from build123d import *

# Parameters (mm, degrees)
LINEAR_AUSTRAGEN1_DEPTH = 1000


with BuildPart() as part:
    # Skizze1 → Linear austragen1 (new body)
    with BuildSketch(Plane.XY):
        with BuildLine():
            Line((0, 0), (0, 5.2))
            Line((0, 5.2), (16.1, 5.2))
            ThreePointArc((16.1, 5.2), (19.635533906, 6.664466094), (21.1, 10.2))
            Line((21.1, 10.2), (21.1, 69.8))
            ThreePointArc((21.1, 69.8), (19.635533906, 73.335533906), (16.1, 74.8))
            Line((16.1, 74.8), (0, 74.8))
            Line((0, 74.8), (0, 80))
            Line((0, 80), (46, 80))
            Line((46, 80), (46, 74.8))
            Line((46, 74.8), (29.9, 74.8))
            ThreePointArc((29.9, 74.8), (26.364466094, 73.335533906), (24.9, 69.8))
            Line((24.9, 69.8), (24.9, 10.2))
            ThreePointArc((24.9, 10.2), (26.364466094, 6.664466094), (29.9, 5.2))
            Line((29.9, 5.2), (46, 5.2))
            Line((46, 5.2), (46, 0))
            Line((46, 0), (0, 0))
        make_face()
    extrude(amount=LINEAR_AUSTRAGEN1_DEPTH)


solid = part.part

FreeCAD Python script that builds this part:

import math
import FreeCAD as App
import Part
import Sketcher

V = App.Vector
Q = App.Units.Quantity

doc = App.newDocument("Part")
body = doc.addObject("PartDesign::Body", "Body")

sketch1 = doc.addObject("Sketcher::SketchObject", "Sketch")
body.addObject(sketch1)
sketch1.AttachmentSupport = (doc.XY_Plane, [""])
sketch1.MapMode = "FlatFace"
sketch1.addGeometry(Part.LineSegment(V(0, 5.2, 0), V(0, 0, 0)), False)
sketch1.addGeometry(Part.LineSegment(V(0, 0, 0), V(46, 0, 0)), False)
sketch1.addGeometry(Part.LineSegment(V(46, 0, 0), V(46, 5.2, 0)), False)
sketch1.addGeometry(Part.LineSegment(V(46, 5.2, 0), V(29.9, 5.2, 0)), False)
sketch1.addGeometry(Part.ArcOfCircle(Part.Circle(V(29.9, 10.2, 0), V(0, 0, 1), 5), math.radians(180), math.radians(270)), False)
sketch1.addGeometry(Part.LineSegment(V(24.9, 10.2, 0), V(24.9, 69.8, 0)), False)
sketch1.addGeometry(Part.ArcOfCircle(Part.Circle(V(29.9, 69.8, 0), V(0, 0, 1), 5), math.radians(90), math.radians(180)), False)
sketch1.addGeometry(Part.LineSegment(V(29.9, 74.8, 0), V(46, 74.8, 0)), False)
sketch1.addGeometry(Part.LineSegment(V(46, 74.8, 0), V(46, 80, 0)), False)
sketch1.addGeometry(Part.LineSegment(V(46, 80, 0), V(0, 80, 0)), False)
sketch1.addGeometry(Part.LineSegment(V(0, 80, 0), V(0, 74.8, 0)), False)
sketch1.addGeometry(Part.LineSegment(V(0, 74.8, 0), V(16.1, 74.8, 0)), False)
sketch1.addGeometry(Part.ArcOfCircle(Part.Circle(V(16.1, 69.8, 0), V(0, 0, 1), 5), math.radians(0), math.radians(90)), False)
sketch1.addGeometry(Part.LineSegment(V(21.1, 69.8, 0), V(21.1, 10.2, 0)), False)
sketch1.addGeometry(Part.ArcOfCircle(Part.Circle(V(16.1, 10.2, 0), V(0, 0, 1), 5), math.radians(-90), math.radians(0)), False)
sketch1.addGeometry(Part.LineSegment(V(16.1, 5.2, 0), V(0, 5.2, 0)), False)
sketch1.addConstraint(Sketcher.Constraint("Coincident", 0, 2, 1, 1))
sketch1.addConstraint(Sketcher.Constraint("Coincident", 1, 2, 2, 1))
sketch1.addConstraint(Sketcher.Constraint("Coincident", 2, 2, 3, 1))
sketch1.addConstraint(Sketcher.Constraint("Tangent", 3, 2, 4, 2))
sketch1.addConstraint(Sketcher.Constraint("Tangent", 4, 1, 5, 1))
sketch1.addConstraint(Sketcher.Constraint("Tangent", 5, 2, 6, 2))
sketch1.addConstraint(Sketcher.Constraint("Tangent", 6, 1, 7, 1))
sketch1.addConstraint(Sketcher.Constraint("Coincident", 7, 2, 8, 1))
sketch1.addConstraint(Sketcher.Constraint("Coincident", 8, 2, 9, 1))
sketch1.addConstraint(Sketcher.Constraint("Coincident", 9, 2, 10, 1))
sketch1.addConstraint(Sketcher.Constraint("Coincident", 10, 2, 11, 1))
sketch1.addConstraint(Sketcher.Constraint("Tangent", 11, 2, 12, 2))
sketch1.addConstraint(Sketcher.Constraint("Tangent", 12, 1, 13, 1))
sketch1.addConstraint(Sketcher.Constraint("Tangent", 13, 2, 14, 2))
sketch1.addConstraint(Sketcher.Constraint("Tangent", 14, 1, 15, 1))
sketch1.addConstraint(Sketcher.Constraint("Coincident", 15, 2, 0, 1))
sketch1.addConstraint(Sketcher.Constraint("Vertical", 0))
sketch1.addConstraint(Sketcher.Constraint("Horizontal", 1))
sketch1.addConstraint(Sketcher.Constraint("Vertical", 2))
sketch1.addConstraint(Sketcher.Constraint("Horizontal", 3))
sketch1.addConstraint(Sketcher.Constraint("Vertical", 5))
sketch1.addConstraint(Sketcher.Constraint("Horizontal", 7))
sketch1.addConstraint(Sketcher.Constraint("Vertical", 8))
sketch1.addConstraint(Sketcher.Constraint("Horizontal", 9))
sketch1.addConstraint(Sketcher.Constraint("Vertical", 10))
sketch1.addConstraint(Sketcher.Constraint("Horizontal", 11))
sketch1.addConstraint(Sketcher.Constraint("Vertical", 13))
sketch1.addConstraint(Sketcher.Constraint("Horizontal", 15))
sketch1.addConstraint(Sketcher.Constraint("Coincident", 0, 2, -1, 1))
sketch1.addConstraint(Sketcher.Constraint("Equal", 4, 6))
sketch1.addConstraint(Sketcher.Constraint("Equal", 6, 12))
sketch1.addConstraint(Sketcher.Constraint("Equal", 12, 14))
sketch1.addConstraint(Sketcher.Constraint("PointOnObject", 9, 2, -2))
sketch1.addConstraint(Sketcher.Constraint("Horizontal", 6, 3, 12, 3))
sketch1.addConstraint(Sketcher.Constraint("Horizontal", 4, 3, 14, 3))
sketch1.addConstraint(Sketcher.Constraint("Vertical", 2, 2, 7, 2))
sketch1.addConstraint(Sketcher.Constraint("Equal", 7, 11))
sketch1.addConstraint(Sketcher.Constraint("Equal", 2, 8))
sketch1.addConstraint(Sketcher.Constraint("Radius", 4, Q("5 mm")))
sketch1.addConstraint(Sketcher.Constraint("DistanceX", 1, 1, 1, 2, Q("46 mm")))
sketch1.addConstraint(Sketcher.Constraint("DistanceX", 3, 2, 3, 1, Q("16.1 mm")))
sketch1.addConstraint(Sketcher.Constraint("DistanceY", 0, 2, 0, 1, Q("5.2 mm")))
sketch1.addConstraint(Sketcher.Constraint("DistanceY", 5, 1, 5, 2, Q("59.6 mm")))
pad1 = doc.addObject("PartDesign::Pad", "Pad")
body.addObject(pad1)
pad1.Profile = sketch1
pad1.Length = 1000

doc.recompute()
